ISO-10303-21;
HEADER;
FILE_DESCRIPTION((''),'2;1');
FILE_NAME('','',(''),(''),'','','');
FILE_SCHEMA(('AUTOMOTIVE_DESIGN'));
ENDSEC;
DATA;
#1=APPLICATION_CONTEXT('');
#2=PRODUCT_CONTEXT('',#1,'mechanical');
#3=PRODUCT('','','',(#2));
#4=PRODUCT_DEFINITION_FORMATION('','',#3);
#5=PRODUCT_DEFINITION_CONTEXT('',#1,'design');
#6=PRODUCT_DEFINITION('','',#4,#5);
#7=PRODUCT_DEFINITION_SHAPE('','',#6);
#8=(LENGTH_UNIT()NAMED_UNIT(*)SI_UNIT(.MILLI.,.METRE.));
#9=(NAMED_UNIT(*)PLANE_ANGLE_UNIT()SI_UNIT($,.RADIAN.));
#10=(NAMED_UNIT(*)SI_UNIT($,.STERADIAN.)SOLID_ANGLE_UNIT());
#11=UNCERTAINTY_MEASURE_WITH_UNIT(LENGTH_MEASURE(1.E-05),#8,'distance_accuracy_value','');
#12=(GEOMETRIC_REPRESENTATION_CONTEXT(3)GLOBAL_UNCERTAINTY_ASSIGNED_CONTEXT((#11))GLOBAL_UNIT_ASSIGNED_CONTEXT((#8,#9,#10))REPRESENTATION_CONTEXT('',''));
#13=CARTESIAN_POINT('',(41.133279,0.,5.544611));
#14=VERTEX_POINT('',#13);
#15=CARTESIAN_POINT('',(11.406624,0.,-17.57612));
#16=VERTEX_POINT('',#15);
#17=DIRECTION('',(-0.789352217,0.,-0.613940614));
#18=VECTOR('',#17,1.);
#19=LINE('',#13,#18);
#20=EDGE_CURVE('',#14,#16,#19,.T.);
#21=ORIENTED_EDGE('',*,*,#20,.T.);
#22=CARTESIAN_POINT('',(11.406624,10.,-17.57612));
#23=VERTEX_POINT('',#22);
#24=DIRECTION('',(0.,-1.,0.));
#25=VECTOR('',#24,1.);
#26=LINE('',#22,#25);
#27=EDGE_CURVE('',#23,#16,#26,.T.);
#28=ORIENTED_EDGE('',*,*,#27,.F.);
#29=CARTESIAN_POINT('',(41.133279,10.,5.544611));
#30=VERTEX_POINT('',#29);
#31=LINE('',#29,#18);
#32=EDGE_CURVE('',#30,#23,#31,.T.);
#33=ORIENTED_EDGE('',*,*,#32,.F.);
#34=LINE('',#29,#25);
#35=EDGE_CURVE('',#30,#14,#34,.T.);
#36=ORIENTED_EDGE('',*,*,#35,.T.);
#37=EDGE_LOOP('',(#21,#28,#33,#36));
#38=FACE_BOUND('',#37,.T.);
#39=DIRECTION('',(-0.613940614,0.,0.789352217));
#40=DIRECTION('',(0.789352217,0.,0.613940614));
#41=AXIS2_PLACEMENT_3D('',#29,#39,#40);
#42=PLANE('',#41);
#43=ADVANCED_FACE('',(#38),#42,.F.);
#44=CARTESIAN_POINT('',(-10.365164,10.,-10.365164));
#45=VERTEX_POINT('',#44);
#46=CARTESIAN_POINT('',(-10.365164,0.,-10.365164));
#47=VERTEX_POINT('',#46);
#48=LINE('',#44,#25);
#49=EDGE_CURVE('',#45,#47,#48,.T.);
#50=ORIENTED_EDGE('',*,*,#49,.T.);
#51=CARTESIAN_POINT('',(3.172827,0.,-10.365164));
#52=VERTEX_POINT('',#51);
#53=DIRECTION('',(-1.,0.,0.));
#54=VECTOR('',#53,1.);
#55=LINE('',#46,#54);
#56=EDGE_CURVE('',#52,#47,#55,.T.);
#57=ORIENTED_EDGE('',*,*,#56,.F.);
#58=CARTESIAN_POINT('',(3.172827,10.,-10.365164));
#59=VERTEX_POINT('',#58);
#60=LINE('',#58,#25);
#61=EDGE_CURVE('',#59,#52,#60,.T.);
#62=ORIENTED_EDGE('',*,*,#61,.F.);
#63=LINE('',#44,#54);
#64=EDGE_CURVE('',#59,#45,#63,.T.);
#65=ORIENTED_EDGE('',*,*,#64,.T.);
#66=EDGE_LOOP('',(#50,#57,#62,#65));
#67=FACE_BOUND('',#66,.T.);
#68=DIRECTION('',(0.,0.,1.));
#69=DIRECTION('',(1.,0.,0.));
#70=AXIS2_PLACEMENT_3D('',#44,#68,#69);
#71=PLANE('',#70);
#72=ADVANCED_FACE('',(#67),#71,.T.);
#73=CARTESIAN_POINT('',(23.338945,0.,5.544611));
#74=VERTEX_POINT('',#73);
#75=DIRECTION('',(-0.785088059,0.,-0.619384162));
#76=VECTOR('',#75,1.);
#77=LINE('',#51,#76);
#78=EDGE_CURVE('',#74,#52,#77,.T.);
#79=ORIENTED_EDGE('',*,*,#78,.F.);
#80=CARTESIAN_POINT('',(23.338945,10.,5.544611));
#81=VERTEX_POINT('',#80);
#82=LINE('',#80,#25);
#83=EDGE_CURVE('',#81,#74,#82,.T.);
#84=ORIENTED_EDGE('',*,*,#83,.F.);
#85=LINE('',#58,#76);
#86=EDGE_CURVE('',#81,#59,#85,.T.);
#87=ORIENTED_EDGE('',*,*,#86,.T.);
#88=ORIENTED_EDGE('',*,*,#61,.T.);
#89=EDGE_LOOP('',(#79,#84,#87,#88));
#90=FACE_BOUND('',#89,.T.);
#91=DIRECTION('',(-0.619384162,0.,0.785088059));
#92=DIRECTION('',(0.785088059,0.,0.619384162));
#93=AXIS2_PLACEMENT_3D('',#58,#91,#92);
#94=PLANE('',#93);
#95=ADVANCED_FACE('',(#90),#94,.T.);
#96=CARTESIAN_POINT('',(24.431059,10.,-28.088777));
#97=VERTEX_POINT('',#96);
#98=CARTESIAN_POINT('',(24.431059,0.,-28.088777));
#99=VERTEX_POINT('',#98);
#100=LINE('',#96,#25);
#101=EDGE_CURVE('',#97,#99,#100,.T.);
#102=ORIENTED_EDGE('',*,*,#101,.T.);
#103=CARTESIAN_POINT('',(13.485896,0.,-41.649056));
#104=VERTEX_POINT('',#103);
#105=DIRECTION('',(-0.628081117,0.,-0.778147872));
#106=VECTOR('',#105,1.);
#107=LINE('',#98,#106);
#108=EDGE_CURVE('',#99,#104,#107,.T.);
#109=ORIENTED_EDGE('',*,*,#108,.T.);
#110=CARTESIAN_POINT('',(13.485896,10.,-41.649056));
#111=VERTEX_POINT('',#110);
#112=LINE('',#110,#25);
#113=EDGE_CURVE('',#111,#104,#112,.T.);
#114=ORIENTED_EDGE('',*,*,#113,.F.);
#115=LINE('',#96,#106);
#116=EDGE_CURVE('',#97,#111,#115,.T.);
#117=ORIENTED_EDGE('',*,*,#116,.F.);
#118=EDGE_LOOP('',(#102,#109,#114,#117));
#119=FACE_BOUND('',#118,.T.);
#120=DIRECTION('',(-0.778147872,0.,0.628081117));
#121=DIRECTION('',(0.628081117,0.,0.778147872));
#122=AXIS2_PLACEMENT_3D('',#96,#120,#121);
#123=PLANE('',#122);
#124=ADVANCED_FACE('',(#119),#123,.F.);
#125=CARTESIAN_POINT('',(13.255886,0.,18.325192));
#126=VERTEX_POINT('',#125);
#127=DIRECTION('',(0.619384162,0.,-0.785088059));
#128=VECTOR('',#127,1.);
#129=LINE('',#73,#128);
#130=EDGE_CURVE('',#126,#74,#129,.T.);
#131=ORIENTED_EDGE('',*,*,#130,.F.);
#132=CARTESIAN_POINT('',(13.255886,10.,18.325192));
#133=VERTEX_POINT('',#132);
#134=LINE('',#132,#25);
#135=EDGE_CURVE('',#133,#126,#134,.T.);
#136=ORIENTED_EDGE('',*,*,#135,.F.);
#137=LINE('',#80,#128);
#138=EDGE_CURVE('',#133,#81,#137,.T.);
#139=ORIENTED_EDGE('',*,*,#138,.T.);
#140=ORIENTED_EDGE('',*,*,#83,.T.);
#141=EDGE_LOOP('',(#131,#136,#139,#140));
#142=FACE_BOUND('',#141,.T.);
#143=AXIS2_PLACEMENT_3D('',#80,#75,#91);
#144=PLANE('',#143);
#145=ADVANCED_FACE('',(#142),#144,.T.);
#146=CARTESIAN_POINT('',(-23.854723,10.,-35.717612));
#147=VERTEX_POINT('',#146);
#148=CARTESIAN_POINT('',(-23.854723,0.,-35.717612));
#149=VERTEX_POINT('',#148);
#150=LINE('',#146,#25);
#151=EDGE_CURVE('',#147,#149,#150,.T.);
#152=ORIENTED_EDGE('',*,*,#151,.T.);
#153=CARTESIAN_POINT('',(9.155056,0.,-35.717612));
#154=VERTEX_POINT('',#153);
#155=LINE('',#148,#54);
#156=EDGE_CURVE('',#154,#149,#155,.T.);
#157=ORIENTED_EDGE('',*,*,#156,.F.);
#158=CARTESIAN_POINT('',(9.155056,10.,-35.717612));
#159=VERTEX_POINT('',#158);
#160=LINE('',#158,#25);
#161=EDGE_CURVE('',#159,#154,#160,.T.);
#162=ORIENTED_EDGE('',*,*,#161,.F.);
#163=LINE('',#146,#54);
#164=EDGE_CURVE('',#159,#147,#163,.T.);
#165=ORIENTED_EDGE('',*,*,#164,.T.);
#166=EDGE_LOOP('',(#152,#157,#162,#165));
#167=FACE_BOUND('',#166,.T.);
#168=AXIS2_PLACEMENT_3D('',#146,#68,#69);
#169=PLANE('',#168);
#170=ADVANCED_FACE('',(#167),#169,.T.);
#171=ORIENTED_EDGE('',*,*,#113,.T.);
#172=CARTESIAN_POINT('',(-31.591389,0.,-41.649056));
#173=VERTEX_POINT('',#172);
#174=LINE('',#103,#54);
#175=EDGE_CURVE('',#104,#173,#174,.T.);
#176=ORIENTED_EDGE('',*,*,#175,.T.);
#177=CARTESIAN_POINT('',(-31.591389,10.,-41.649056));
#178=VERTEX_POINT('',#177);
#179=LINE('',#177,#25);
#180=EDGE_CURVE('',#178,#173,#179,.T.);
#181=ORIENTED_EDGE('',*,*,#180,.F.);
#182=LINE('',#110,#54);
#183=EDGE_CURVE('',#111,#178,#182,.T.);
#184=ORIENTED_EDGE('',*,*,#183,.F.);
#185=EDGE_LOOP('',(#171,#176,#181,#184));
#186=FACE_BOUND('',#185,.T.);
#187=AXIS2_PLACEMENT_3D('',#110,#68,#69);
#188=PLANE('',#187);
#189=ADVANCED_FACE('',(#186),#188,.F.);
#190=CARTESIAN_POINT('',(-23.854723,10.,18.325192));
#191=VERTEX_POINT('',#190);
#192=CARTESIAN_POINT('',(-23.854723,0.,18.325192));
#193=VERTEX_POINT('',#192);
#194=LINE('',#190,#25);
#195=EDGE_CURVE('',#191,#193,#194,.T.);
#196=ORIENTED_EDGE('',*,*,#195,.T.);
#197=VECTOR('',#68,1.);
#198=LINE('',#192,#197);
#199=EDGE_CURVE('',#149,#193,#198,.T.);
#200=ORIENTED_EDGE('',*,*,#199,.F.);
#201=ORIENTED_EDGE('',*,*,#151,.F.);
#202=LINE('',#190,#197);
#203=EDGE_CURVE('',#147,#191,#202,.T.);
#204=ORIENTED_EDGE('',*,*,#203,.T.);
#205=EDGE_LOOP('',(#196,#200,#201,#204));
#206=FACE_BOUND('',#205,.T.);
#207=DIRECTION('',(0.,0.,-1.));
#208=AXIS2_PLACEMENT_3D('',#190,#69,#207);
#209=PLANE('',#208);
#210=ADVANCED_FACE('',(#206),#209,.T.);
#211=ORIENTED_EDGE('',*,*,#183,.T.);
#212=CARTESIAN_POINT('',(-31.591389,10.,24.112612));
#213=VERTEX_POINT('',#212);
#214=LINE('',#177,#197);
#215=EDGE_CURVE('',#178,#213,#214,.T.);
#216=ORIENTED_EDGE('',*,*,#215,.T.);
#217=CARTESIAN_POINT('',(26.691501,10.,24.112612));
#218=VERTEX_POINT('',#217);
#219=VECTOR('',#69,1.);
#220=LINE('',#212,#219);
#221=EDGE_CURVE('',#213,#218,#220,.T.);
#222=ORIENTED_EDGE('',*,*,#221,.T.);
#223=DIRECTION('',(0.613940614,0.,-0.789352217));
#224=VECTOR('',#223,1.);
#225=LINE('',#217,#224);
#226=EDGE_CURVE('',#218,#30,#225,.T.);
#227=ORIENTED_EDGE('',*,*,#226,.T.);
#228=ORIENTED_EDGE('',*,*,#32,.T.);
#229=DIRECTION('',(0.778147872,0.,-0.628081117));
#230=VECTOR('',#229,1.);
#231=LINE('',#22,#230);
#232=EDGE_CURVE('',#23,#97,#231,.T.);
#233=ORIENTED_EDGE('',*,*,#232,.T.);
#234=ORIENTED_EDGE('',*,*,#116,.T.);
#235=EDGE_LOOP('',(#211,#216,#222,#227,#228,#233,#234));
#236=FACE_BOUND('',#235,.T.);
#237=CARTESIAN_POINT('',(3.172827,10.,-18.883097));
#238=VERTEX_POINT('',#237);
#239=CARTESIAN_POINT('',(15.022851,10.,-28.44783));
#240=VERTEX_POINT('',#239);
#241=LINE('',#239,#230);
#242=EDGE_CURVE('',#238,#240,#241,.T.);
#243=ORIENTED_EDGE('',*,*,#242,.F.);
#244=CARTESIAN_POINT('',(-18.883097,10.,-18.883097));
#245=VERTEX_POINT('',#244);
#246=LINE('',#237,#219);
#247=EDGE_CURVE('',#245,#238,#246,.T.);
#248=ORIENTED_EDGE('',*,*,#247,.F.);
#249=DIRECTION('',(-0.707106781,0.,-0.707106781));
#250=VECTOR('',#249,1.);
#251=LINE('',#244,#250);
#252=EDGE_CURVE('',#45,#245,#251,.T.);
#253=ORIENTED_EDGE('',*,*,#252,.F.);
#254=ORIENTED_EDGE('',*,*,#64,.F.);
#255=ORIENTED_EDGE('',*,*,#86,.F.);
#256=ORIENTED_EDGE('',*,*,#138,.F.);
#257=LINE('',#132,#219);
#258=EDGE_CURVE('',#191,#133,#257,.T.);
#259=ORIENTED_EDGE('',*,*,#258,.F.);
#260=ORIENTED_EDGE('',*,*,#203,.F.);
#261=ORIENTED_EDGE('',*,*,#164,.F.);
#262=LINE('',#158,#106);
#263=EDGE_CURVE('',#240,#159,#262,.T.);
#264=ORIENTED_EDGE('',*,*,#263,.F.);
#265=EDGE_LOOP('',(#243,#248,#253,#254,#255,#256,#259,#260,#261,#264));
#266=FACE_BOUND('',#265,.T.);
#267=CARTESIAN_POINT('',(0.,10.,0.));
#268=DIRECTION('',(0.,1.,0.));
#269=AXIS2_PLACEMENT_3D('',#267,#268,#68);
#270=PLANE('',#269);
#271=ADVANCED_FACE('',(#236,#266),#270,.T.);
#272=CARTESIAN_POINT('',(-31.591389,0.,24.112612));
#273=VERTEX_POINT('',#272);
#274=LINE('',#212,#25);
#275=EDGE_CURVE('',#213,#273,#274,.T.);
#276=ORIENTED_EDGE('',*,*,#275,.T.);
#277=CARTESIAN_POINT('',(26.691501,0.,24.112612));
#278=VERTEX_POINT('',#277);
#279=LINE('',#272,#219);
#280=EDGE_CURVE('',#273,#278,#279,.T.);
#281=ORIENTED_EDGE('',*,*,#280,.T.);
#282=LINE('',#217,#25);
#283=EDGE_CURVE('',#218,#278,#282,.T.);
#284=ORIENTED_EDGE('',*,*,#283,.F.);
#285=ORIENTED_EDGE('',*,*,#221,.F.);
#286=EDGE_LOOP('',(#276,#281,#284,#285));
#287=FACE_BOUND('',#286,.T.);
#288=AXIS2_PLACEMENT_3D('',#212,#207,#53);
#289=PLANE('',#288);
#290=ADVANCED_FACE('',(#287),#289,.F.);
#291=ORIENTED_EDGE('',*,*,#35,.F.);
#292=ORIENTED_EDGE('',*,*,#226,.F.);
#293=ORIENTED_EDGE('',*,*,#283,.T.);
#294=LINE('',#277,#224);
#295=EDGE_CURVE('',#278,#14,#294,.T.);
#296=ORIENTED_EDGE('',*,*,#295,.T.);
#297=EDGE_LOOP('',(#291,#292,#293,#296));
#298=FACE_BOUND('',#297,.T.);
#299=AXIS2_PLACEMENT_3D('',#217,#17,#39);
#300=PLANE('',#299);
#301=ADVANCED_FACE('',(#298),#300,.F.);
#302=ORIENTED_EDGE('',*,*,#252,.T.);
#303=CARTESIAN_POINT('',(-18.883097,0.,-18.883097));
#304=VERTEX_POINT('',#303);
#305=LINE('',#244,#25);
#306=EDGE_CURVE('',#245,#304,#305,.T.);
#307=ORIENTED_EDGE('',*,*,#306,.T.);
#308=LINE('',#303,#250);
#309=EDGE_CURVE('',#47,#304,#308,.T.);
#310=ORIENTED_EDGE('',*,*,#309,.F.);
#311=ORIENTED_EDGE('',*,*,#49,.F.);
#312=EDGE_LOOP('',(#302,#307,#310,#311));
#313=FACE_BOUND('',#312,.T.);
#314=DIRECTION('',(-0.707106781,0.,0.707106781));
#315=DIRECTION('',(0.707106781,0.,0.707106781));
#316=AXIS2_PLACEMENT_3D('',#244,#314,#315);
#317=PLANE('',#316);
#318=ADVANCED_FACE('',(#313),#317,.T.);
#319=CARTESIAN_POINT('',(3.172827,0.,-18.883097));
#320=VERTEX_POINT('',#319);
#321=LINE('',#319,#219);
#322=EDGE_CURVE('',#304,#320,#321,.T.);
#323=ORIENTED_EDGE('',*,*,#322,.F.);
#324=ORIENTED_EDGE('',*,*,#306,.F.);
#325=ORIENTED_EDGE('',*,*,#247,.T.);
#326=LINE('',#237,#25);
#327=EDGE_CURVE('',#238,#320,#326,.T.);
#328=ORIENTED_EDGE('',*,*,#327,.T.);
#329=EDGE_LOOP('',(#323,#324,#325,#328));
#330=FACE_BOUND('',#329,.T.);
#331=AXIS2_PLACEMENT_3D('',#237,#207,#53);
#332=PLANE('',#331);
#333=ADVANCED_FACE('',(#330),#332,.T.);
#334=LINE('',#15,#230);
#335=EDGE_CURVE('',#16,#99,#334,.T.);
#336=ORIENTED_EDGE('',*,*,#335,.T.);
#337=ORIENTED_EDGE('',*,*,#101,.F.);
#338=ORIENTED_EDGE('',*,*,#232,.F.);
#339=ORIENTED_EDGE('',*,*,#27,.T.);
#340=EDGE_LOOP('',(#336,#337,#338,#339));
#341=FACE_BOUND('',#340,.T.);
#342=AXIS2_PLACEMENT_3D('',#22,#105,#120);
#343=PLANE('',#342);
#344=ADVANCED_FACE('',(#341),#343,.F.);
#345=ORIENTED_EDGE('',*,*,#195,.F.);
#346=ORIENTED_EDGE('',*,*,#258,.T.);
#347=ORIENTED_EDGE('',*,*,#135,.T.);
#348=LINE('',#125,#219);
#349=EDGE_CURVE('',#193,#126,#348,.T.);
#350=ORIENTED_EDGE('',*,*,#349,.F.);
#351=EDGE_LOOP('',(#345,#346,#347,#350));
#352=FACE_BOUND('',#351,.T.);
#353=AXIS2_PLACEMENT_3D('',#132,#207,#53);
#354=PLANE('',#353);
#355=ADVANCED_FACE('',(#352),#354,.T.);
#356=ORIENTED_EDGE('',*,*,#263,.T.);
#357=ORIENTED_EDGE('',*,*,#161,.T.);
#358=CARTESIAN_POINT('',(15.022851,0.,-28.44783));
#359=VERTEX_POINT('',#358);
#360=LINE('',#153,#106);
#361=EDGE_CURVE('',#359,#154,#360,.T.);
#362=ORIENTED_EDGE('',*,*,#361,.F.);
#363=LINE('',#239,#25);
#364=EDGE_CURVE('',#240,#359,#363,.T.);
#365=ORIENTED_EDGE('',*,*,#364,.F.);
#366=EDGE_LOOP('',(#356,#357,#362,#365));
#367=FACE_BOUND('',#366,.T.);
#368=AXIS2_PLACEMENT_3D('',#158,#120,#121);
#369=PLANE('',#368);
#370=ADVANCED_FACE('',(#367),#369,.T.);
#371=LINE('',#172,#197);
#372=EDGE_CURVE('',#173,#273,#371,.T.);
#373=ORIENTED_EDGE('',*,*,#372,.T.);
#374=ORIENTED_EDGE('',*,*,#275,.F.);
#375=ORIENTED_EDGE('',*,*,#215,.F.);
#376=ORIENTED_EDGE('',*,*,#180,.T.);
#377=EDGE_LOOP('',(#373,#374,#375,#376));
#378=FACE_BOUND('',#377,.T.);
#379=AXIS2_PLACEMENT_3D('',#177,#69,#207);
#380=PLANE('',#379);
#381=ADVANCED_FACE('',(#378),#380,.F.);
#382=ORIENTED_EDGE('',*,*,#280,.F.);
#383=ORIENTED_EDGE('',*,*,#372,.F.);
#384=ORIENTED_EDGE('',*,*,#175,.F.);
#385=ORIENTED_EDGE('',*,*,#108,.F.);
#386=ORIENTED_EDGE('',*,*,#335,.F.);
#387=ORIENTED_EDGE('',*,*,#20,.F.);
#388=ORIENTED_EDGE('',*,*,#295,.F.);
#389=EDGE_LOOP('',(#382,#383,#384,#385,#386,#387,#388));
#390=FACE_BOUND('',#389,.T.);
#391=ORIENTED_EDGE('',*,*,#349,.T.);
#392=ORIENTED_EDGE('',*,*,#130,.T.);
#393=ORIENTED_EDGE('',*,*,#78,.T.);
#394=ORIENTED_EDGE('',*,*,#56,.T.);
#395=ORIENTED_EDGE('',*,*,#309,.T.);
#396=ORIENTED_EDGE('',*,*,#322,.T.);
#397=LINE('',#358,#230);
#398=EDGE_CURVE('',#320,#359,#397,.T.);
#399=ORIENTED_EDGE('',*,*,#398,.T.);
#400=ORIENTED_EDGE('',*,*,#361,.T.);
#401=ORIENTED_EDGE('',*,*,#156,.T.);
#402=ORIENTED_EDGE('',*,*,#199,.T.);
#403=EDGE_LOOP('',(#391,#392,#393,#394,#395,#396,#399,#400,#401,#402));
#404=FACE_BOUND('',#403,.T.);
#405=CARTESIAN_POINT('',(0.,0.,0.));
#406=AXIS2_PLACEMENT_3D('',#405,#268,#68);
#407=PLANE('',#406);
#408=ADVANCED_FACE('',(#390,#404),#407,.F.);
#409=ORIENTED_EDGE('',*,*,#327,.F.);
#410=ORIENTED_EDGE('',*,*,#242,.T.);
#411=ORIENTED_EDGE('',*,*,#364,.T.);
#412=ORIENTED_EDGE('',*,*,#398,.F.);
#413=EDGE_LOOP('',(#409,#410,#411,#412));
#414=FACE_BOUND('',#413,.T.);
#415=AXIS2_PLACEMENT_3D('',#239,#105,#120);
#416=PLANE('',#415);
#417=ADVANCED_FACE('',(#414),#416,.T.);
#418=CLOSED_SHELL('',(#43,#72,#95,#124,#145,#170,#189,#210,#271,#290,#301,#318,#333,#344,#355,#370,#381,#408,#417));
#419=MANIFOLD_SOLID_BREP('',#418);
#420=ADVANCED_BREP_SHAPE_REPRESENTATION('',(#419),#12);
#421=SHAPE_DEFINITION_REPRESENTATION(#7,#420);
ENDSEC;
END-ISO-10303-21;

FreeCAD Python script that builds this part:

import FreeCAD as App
import Part
import Sketcher
Q = App.Units.Quantity

doc = App.newDocument("Part")
body = doc.addObject("PartDesign::Body", "Body")

# Sketch on XZ plane
sketch1 = body.newObject("Sketcher::SketchObject", "Sketch")
sketch1.AttachmentSupport = (doc.getObject("XZ_Plane"), [""])
sketch1.MapMode = "FlatFace"
sketch1.addGeometry([
    Part.LineSegment(App.Vector(-32, -42, 0), App.Vector(-32, 24, 0)),  # 0
    Part.LineSegment(App.Vector(-32, 24, 0), App.Vector(27, 24, 0)),  # 1
    Part.LineSegment(App.Vector(27, 24, 0), App.Vector(41, 6, 0)),  # 2
    Part.LineSegment(App.Vector(41, 6, 0), App.Vector(11, -18, 0)),  # 3
    Part.LineSegment(App.Vector(11, -18, 0), App.Vector(24, -28, 0)),  # 4
    Part.LineSegment(App.Vector(24, -28, 0), App.Vector(13, -42, 0)),  # 5
    Part.LineSegment(App.Vector(13, -42, 0), App.Vector(-32, -42, 0)),  # 6
    Part.LineSegment(App.Vector(-24, 18, 0), App.Vector(-24, -36, 0)),  # 7
    Part.LineSegment(App.Vector(-24, -36, 0), App.Vector(9, -36, 0)),  # 8
    Part.LineSegment(App.Vector(9, -36, 0), App.Vector(15, -28, 0)),  # 9
    Part.LineSegment(App.Vector(15, -28, 0), App.Vector(3, -19, 0)),  # 10
    Part.LineSegment(App.Vector(3, -19, 0), App.Vector(-19, -19, 0)),  # 11
    Part.LineSegment(App.Vector(-19, -19, 0), App.Vector(-10, -10, 0)),  # 12
    Part.LineSegment(App.Vector(-10, -10, 0), App.Vector(3, -10, 0)),  # 13
    Part.LineSegment(App.Vector(3, -10, 0), App.Vector(23, 6, 0)),  # 14
    Part.LineSegment(App.Vector(23, 6, 0), App.Vector(13, 18, 0)),  # 15
    Part.LineSegment(App.Vector(13, 18, 0), App.Vector(-24, 18, 0)),  # 16
], False)
sketch1.addConstraint([
    Sketcher.Constraint("Coincident", 0, 2, 1, 1),
    Sketcher.Constraint("Coincident", 1, 2, 2, 1),
    Sketcher.Constraint("Coincident", 2, 2, 3, 1),
    Sketcher.Constraint("Coincident", 3, 2, 4, 1),
    Sketcher.Constraint("Coincident", 4, 2, 5, 1),
    Sketcher.Constraint("Coincident", 5, 2, 6, 1),
    Sketcher.Constraint("Coincident", 6, 2, 0, 1),
    Sketcher.Constraint("Coincident", 7, 2, 8, 1),
    Sketcher.Constraint("Coincident", 8, 2, 9, 1),
    Sketcher.Constraint("Coincident", 9, 2, 10, 1),
    Sketcher.Constraint("Coincident", 10, 2, 11, 1),
    Sketcher.Constraint("Coincident", 11, 2, 12, 1),
    Sketcher.Constraint("Coincident", 12, 2, 13, 1),
    Sketcher.Constraint("Coincident", 13, 2, 14, 1),
    Sketcher.Constraint("Coincident", 14, 2, 15, 1),
    Sketcher.Constraint("Coincident", 15, 2, 16, 1),
    Sketcher.Constraint("Coincident", 16, 2, 7, 1),
    Sketcher.Constraint("Vertical", 0),
    Sketcher.Constraint("Horizontal", 1),
    Sketcher.Constraint("Horizontal", 6),
    Sketcher.Constraint("Vertical", 7),
    Sketcher.Constraint("Horizontal", 8),
    Sketcher.Constraint("Horizontal", 11),
    Sketcher.Constraint("Horizontal", 13),
    Sketcher.Constraint("Horizontal", 16),
    Sketcher.Constraint("Perpendicular", 2, 3),
    Sketcher.Constraint("Perpendicular", 4, 5),
    Sketcher.Constraint("Parallel", 5, 9),
    Sketcher.Constraint("Perpendicular", 9, 10),
    Sketcher.Constraint("Perpendicular", 14, 15),
    Sketcher.Constraint("Horizontal", 2, 2, 14, 2),
    Sketcher.Constraint("Vertical", 10, 2, 13, 2),
    Sketcher.Constraint("Angle", 12, Q("45 deg")),
    Sketcher.Constraint("DistanceY", 2, 2, 1, 2, 18.568),
    Sketcher.Constraint("Distance", 10, 15.228499),
    Sketcher.Constraint("DistanceX", 1, 1, 1, 2, 58.28289),
    Sketcher.Constraint("DistanceX", 8, 1, 8, 2, 33.009778),
    Sketcher.Constraint("DistanceX", 13, 1, 13, 2, 13.53799),
    Sketcher.Constraint("DistanceX", 16, 2, 16, 1, 37.110609),
    Sketcher.Constraint("DistanceX", -1, 1, 1, 2, 26.691501),
    Sketcher.Constraint("Distance", 14, 25.686441),
    Sketcher.Constraint("Distance", 15, 16.279168),
    Sketcher.Constraint("DistanceX", 6, 2, 6, 1, 45.077285),
    Sketcher.Constraint("DistanceX", 11, 2, 11, 1, 22.055924),
    Sketcher.Constraint("DistanceY", 0, 1, 0, 2, 65.761668),
    Sketcher.Constraint("DistanceY", 7, 2, 7, 1, 54.042804),
    Sketcher.Constraint("DistanceY", -1, 1, 0, 2, 24.112612),
    Sketcher.Constraint("DistanceX", -1, 1, 2, 2, 41.133279),
    Sketcher.Constraint("DistanceY", 3, 2, -1, 1, 17.57612),
    Sketcher.Constraint("DistanceX", -1, 1, 4, 2, 24.431059),
    Sketcher.Constraint("DistanceX", -1, 1, 9, 2, 15.022851),
])
pad1 = body.newObject("PartDesign::Pad", "Pad")
pad1.Profile = sketch1
pad1.Length = 10
pad1.Reversed = True

doc.recompute()
